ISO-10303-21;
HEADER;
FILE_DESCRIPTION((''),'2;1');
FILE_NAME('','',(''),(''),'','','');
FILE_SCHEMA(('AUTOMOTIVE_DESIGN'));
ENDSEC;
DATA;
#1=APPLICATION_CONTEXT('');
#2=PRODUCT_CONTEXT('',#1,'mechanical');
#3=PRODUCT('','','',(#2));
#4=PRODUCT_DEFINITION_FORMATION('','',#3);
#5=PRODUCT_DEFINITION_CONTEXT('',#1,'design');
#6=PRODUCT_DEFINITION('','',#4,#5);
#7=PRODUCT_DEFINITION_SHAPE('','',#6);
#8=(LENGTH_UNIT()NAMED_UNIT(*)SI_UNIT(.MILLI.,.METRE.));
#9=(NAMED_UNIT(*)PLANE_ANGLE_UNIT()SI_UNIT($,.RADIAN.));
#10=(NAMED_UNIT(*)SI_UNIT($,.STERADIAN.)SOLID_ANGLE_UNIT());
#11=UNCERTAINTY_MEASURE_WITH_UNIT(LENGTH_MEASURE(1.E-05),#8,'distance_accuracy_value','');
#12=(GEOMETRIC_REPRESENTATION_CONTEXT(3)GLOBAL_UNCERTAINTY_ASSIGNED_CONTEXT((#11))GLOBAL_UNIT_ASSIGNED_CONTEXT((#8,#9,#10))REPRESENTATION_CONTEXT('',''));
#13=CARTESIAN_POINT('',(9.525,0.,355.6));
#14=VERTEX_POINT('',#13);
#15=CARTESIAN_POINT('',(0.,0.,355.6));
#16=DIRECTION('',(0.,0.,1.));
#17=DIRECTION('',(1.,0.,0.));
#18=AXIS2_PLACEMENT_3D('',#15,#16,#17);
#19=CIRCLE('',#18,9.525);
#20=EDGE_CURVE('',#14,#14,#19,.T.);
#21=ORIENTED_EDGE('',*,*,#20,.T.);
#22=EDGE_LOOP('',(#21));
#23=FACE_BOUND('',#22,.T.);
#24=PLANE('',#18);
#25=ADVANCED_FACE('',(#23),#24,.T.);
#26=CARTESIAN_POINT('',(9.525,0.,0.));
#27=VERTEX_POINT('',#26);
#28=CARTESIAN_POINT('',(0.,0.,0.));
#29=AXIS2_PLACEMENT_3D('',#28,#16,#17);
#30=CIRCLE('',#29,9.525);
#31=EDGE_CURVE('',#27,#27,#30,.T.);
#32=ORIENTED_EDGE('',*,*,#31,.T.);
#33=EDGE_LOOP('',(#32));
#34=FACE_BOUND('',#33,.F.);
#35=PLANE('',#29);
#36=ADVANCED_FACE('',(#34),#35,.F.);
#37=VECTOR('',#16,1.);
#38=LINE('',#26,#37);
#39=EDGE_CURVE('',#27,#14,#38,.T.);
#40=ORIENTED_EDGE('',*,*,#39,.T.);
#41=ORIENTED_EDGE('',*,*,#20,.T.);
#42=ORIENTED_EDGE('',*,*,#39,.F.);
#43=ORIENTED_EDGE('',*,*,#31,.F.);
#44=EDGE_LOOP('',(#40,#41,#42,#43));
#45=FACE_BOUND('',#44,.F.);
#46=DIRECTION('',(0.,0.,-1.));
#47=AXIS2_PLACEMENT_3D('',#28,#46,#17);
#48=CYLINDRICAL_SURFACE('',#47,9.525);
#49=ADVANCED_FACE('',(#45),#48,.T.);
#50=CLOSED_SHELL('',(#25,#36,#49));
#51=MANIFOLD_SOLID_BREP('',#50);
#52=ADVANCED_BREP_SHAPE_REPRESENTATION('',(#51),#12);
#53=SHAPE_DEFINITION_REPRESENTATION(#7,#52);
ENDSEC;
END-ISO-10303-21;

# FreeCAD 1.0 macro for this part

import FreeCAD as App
import Part
import Sketcher

V = App.Vector
Q = App.Units.Quantity

doc = App.newDocument("Part")
body = doc.addObject("PartDesign::Body", "Body")

sketch1 = body.newObject("Sketcher::SketchObject", "Sketch")
sketch1.AttachmentSupport = (doc.getObject("XY_Plane"), [""])
sketch1.MapMode = "FlatFace"
sketch1.addGeometry(Part.Circle(V(0, 0, 0), V(0, 0, 1), 10), False)
sketch1.addConstraint(Sketcher.Constraint("Coincident", 0, 3, -1, 1))
sketch1.addConstraint(Sketcher.Constraint("Diameter", 0, Q("0.75 in")))
pad1 = body.newObject("PartDesign::Pad", "Pad")
pad1.Profile = sketch1
pad1.Length = Q("14 in")

doc.recompute()
